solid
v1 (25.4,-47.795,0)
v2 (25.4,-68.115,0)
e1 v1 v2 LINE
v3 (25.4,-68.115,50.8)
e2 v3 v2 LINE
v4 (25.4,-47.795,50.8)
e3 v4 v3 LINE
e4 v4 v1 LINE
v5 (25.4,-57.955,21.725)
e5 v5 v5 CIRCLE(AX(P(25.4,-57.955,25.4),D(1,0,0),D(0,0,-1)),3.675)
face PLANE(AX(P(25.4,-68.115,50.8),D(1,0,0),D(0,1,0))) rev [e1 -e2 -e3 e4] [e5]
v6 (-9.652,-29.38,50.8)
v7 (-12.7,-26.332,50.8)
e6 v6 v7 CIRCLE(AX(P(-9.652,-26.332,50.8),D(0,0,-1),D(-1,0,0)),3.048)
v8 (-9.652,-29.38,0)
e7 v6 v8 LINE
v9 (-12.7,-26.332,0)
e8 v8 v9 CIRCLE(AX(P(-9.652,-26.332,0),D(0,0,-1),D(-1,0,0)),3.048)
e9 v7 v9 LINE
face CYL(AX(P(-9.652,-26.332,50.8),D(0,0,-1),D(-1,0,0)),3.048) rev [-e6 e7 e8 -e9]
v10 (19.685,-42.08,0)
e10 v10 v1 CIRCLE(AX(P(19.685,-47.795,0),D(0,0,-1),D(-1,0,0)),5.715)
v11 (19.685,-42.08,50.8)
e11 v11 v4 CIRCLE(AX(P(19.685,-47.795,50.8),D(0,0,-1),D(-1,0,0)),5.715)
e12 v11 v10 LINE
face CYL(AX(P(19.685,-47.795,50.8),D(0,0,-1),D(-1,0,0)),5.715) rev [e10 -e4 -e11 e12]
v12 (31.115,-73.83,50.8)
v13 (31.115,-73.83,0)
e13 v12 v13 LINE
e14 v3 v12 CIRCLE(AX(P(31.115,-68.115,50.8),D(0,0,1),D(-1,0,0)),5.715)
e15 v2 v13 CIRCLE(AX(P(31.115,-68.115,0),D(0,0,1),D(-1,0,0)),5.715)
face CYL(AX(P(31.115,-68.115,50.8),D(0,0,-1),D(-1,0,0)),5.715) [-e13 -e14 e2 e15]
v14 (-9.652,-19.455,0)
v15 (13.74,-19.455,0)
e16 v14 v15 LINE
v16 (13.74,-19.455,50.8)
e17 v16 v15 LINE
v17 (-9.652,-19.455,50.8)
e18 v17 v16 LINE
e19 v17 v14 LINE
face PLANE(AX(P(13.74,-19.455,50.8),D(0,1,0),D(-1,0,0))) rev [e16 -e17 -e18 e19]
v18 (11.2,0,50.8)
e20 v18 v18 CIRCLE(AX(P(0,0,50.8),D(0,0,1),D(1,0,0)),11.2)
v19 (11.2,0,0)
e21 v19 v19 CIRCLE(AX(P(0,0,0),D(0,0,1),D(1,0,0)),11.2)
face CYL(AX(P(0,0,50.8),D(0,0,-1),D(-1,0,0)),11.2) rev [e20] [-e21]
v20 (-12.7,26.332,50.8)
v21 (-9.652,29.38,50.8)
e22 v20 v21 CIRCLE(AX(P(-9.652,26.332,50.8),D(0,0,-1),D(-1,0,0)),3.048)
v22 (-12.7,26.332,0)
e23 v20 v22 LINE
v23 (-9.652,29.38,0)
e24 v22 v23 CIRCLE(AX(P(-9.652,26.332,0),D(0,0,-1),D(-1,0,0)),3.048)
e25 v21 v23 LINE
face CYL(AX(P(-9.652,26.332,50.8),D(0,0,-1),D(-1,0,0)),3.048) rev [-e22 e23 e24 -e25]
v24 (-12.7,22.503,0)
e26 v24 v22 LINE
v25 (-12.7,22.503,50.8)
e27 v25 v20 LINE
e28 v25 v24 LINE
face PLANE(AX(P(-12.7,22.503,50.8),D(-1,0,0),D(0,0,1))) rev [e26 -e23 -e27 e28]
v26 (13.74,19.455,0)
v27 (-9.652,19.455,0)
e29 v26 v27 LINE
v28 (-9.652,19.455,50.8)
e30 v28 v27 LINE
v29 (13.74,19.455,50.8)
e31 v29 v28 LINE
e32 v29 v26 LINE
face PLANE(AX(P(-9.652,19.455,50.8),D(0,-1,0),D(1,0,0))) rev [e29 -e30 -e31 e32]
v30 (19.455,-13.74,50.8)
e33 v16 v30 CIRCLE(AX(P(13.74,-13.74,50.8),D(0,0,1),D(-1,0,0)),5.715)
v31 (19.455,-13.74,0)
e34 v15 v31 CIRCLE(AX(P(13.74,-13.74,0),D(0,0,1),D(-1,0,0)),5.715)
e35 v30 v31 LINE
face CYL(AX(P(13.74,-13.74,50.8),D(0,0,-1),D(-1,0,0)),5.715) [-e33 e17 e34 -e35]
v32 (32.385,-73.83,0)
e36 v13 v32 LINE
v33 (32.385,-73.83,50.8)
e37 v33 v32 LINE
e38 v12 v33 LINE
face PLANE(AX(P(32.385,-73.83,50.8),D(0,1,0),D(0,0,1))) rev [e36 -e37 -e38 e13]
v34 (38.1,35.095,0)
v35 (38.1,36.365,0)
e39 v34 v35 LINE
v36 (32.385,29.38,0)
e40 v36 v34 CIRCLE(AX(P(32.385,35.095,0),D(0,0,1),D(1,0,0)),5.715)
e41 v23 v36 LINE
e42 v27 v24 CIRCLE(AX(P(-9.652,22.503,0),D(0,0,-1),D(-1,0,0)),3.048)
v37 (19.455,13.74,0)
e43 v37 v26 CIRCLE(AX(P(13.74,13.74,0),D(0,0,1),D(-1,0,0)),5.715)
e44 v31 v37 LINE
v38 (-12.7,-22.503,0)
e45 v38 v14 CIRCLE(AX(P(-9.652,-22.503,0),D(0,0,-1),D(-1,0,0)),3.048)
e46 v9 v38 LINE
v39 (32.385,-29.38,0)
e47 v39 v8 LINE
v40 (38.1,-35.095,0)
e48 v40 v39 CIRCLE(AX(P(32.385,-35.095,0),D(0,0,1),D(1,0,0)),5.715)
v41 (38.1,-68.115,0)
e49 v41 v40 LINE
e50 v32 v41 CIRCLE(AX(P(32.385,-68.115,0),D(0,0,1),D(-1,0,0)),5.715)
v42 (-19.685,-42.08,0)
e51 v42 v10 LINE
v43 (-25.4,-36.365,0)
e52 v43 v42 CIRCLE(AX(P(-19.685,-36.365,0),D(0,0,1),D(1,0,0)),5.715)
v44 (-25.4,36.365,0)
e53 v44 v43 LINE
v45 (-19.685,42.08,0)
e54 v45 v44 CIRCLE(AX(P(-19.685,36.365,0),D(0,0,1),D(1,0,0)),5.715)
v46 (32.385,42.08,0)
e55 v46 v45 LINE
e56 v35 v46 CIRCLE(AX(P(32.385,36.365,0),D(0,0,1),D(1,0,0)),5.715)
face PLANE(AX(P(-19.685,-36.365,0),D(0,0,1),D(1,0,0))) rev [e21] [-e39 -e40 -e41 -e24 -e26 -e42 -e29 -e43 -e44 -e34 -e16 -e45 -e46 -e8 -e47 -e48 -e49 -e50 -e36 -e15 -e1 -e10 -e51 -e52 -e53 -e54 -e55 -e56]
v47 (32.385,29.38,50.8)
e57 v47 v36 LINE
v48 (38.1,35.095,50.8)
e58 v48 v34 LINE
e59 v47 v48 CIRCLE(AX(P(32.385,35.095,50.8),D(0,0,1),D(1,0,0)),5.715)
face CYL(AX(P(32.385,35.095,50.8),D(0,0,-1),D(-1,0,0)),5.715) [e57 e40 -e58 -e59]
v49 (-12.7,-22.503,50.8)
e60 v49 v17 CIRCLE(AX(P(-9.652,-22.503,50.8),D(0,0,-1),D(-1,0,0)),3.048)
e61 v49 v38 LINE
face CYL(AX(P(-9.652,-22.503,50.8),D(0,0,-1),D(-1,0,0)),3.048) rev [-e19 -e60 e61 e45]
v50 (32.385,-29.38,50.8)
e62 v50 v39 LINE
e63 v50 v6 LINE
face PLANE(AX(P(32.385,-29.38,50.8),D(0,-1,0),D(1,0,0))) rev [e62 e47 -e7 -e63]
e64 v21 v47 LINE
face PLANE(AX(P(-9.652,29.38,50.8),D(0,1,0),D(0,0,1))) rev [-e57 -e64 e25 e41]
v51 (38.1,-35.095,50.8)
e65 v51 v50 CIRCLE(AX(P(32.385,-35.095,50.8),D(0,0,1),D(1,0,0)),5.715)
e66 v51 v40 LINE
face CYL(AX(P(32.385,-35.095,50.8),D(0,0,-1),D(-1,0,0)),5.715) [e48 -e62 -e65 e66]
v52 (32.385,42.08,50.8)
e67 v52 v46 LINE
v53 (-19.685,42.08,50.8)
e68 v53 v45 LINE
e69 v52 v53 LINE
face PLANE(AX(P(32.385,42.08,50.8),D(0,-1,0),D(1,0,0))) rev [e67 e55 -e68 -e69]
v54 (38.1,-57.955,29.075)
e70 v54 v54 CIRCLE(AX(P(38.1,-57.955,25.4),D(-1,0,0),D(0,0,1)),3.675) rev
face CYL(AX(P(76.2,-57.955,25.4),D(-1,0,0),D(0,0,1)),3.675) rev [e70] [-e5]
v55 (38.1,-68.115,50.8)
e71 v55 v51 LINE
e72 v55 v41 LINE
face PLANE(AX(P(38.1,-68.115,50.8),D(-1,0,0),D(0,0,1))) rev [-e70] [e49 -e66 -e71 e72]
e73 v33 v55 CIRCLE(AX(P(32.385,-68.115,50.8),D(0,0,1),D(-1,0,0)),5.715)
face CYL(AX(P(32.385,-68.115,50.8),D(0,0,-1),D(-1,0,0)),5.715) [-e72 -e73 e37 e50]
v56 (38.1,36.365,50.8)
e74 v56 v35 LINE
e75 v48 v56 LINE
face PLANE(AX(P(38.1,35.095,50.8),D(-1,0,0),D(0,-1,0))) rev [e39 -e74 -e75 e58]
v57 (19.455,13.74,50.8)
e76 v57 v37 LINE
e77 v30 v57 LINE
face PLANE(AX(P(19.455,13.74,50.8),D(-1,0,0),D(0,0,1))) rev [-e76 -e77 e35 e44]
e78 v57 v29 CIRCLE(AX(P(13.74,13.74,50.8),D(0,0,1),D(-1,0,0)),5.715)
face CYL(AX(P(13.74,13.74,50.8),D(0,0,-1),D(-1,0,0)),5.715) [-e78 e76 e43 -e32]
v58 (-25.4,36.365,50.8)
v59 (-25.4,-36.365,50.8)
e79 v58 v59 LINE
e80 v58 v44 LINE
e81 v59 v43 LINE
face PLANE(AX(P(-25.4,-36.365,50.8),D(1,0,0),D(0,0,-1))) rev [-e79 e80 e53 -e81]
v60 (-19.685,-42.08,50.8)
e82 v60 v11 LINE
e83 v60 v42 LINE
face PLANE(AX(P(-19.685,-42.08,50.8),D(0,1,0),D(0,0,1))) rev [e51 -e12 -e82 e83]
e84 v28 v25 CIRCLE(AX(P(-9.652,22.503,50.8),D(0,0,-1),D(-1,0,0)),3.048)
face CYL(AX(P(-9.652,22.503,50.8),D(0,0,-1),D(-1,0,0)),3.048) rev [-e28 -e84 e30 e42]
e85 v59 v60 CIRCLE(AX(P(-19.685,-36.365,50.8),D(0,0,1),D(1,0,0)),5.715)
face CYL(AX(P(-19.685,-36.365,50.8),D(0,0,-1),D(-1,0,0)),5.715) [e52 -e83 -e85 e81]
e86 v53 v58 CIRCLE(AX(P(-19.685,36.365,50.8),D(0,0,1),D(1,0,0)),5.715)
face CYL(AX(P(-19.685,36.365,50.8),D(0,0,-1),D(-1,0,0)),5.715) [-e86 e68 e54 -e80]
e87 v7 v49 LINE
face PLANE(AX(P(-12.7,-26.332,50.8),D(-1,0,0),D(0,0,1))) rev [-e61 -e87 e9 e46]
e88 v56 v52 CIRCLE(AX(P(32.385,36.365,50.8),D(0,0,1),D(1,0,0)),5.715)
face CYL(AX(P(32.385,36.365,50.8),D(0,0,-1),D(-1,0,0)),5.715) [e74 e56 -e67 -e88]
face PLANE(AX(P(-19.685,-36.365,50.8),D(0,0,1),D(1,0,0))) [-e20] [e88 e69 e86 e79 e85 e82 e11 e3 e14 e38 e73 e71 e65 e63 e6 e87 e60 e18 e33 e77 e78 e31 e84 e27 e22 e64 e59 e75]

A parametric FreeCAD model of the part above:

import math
import FreeCAD as App
import Part
import Sketcher
from FreeCAD import Vector
Q = App.Units.Quantity

doc = App.newDocument("Part")
body = doc.addObject("PartDesign::Body", "Body")

# Sketch on XY plane
sketch1 = doc.addObject("Sketcher::SketchObject", "Sketch")
body.addObject(sketch1)
sketch1.AttachmentSupport = (doc.XY_Plane, [""])
sketch1.MapMode = "FlatFace"
sketch1.addGeometry([
    Part.LineSegment(Vector(-25.4, 36.4, 0), Vector(-25.4, -36.4, 0)),  # 0
    Part.ArcOfCircle(Part.Circle(Vector(-19.7, -36.4, 0), Vector(0, 0, 1), 5.7), math.radians(-180), math.radians(-90)),  # 1
    Part.LineSegment(Vector(-19.7, -42.1, 0), Vector(19.7, -42.1, 0)),  # 2
    Part.ArcOfCircle(Part.Circle(Vector(19.7, -47.8, 0), Vector(0, 0, 1), 5.7), math.radians(0), math.radians(90)),  # 3
    Part.LineSegment(Vector(25.4, -47.8, 0), Vector(25.4, -68.1, 0)),  # 4
    Part.ArcOfCircle(Part.Circle(Vector(31.1, -68.1, 0), Vector(0, 0, 1), 5.7), math.radians(-180), math.radians(-90)),  # 5
    Part.LineSegment(Vector(31.1, -73.8, 0), Vector(32.4, -73.8, 0)),  # 6
    Part.ArcOfCircle(Part.Circle(Vector(32.4, -68.1, 0), Vector(0, 0, 1), 5.7), math.radians(-90), math.radians(0)),  # 7
    Part.LineSegment(Vector(38.1, -68.1, 0), Vector(38.1, -35.1, 0)),  # 8
    Part.ArcOfCircle(Part.Circle(Vector(32.4, -35.1, 0), Vector(0, 0, 1), 5.7), math.radians(0), math.radians(90)),  # 9
    Part.LineSegment(Vector(32.4, -29.4, 0), Vector(-9.7, -29.4, 0)),  # 10
    Part.ArcOfCircle(Part.Circle(Vector(-9.7, -26.3, 0), Vector(0, 0, 1), 3), math.radians(180), math.radians(270)),  # 11
    Part.LineSegment(Vector(-12.7, -26.3, 0), Vector(-12.7, -22.5, 0)),  # 12
    Part.ArcOfCircle(Part.Circle(Vector(-9.7, -22.5, 0), Vector(0, 0, 1), 3), math.radians(90), math.radians(180)),  # 13
    Part.LineSegment(Vector(-9.7, -19.5, 0), Vector(13.7, -19.5, 0)),  # 14
    Part.ArcOfCircle(Part.Circle(Vector(13.7, -13.7, 0), Vector(0, 0, 1), 5.7), math.radians(-90), math.radians(0)),  # 15
    Part.LineSegment(Vector(19.5, -13.7, 0), Vector(19.5, 13.7, 0)),  # 16
    Part.ArcOfCircle(Part.Circle(Vector(13.7, 13.7, 0), Vector(0, 0, 1), 5.7), math.radians(0), math.radians(90)),  # 17
    Part.LineSegment(Vector(13.7, 19.5, 0), Vector(-9.7, 19.5, 0)),  # 18
    Part.ArcOfCircle(Part.Circle(Vector(-9.7, 22.5, 0), Vector(0, 0, 1), 3), math.radians(180), math.radians(270)),  # 19
    Part.LineSegment(Vector(-12.7, 22.5, 0), Vector(-12.7, 26.3, 0)),  # 20
    Part.ArcOfCircle(Part.Circle(Vector(-9.7, 26.3, 0), Vector(0, 0, 1), 3), math.radians(90), math.radians(180)),  # 21
    Part.LineSegment(Vector(-9.7, 29.4, 0), Vector(32.4, 29.4, 0)),  # 22
    Part.ArcOfCircle(Part.Circle(Vector(32.4, 35.1, 0), Vector(0, 0, 1), 5.7), math.radians(-90), math.radians(0)),  # 23
    Part.LineSegment(Vector(38.1, 35.1, 0), Vector(38.1, 36.4, 0)),  # 24
    Part.ArcOfCircle(Part.Circle(Vector(32.4, 36.4, 0), Vector(0, 0, 1), 5.7), math.radians(0), math.radians(90)),  # 25
    Part.LineSegment(Vector(32.4, 42.1, 0), Vector(-19.7, 42.1, 0)),  # 26
    Part.ArcOfCircle(Part.Circle(Vector(-19.7, 36.4, 0), Vector(0, 0, 1), 5.7), math.radians(90), math.radians(180)),  # 27
    Part.Circle(Vector(0, 0, 0), Vector(0, 0, 1), 11.2),  # 28
], False)
sketch1.addConstraint([
    Sketcher.Constraint("Tangent", 0, 2, 1, 1),
    Sketcher.Constraint("Tangent", 1, 2, 2, 1),
    Sketcher.Constraint("Tangent", 2, 2, 3, 2),
    Sketcher.Constraint("Tangent", 3, 1, 4, 1),
    Sketcher.Constraint("Tangent", 4, 2, 5, 1),
    Sketcher.Constraint("Tangent", 5, 2, 6, 1),
    Sketcher.Constraint("Tangent", 6, 2, 7, 1),
    Sketcher.Constraint("Tangent", 7, 2, 8, 1),
    Sketcher.Constraint("Tangent", 8, 2, 9, 1),
    Sketcher.Constraint("Tangent", 9, 2, 10, 1),
    Sketcher.Constraint("Tangent", 10, 2, 11, 2),
    Sketcher.Constraint("Tangent", 11, 1, 12, 1),
    Sketcher.Constraint("Tangent", 12, 2, 13, 2),
    Sketcher.Constraint("Tangent", 13, 1, 14, 1),
    Sketcher.Constraint("Tangent", 14, 2, 15, 1),
    Sketcher.Constraint("Tangent", 15, 2, 16, 1),
    Sketcher.Constraint("Tangent", 16, 2, 17, 1),
    Sketcher.Constraint("Tangent", 17, 2, 18, 1),
    Sketcher.Constraint("Tangent", 18, 2, 19, 2),
    Sketcher.Constraint("Tangent", 19, 1, 20, 1),
    Sketcher.Constraint("Tangent", 20, 2, 21, 2),
    Sketcher.Constraint("Tangent", 21, 1, 22, 1),
    Sketcher.Constraint("Tangent", 22, 2, 23, 1),
    Sketcher.Constraint("Tangent", 23, 2, 24, 1),
    Sketcher.Constraint("Tangent", 24, 2, 25, 1),
    Sketcher.Constraint("Tangent", 25, 2, 26, 1),
    Sketcher.Constraint("Tangent", 26, 2, 27, 1),
    Sketcher.Constraint("Tangent", 27, 2, 0, 1),
    Sketcher.Constraint("Vertical", 0),
    Sketcher.Constraint("Horizontal", 2),
    Sketcher.Constraint("Vertical", 4),
    Sketcher.Constraint("Horizontal", 6),
    Sketcher.Constraint("Vertical", 8),
    Sketcher.Constraint("Horizontal", 10),
    Sketcher.Constraint("Vertical", 12),
    Sketcher.Constraint("Horizontal", 14),
    Sketcher.Constraint("Vertical", 16),
    Sketcher.Constraint("Horizontal", 18),
    Sketcher.Constraint("Vertical", 20),
    Sketcher.Constraint("Horizontal", 22),
    Sketcher.Constraint("Vertical", 24),
    Sketcher.Constraint("Horizontal", 26),
    Sketcher.Constraint("Coincident", 28, 3, -1, 1),
    Sketcher.Constraint("Equal", 1, 3),
    Sketcher.Constraint("Equal", 3, 5),
    Sketcher.Constraint("Equal", 5, 7),
    Sketcher.Constraint("Equal", 7, 9),
    Sketcher.Constraint("Equal", 11, 13),
    Sketcher.Constraint("Equal", 9, 15),
    Sketcher.Constraint("Equal", 15, 17),
    Sketcher.Constraint("Equal", 13, 19),
    Sketcher.Constraint("Equal", 19, 21),
    Sketcher.Constraint("Equal", 17, 23),
    Sketcher.Constraint("Equal", 23, 25),
    Sketcher.Constraint("Equal", 25, 27),
    Sketcher.Constraint("Symmetric", 2, 2, 26, 2, -1, 1),
    Sketcher.Constraint("Symmetric", 13, 3, 19, 3, -1),
    Sketcher.Constraint("Symmetric", 9, 3, 23, 3, -1),
    Sketcher.Constraint("Equal", 6, 24),
    Sketcher.Constraint("Radius", 11, Q("0.12 in")),
    Sketcher.Constraint("DistanceY", 4, 2, 4, 1, Q("0.8 in")),
    Sketcher.Constraint("DistanceY", 8, 1, 8, 2, Q("1.3 in")),
    Sketcher.Constraint("DistanceX", 0, 2, -1, 1, Q("1 in")),
    Sketcher.Constraint("Radius", 1, Q("0.225 in")),
    Sketcher.Constraint("DistanceX", 11, 1, -1, 1, Q("0.5 in")),
    Sketcher.Constraint("Diameter", 28, Q("22.4 mm")),
    Sketcher.Constraint("DistanceX", 14, 1, 14, 2, Q("23.392 mm")),
    Sketcher.Constraint("DistanceY", 0, 2, 0, 1, Q("72.73 mm")),
    Sketcher.Constraint("DistanceY", 12, 1, 12, 2, Q("3.829 mm")),
])
pad1 = doc.addObject("PartDesign::Pad", "Pad")
body.addObject(pad1)
pad1.Profile = sketch1
pad1.Length = Q("2 in")

# Sketch on YZ plane
sketch2 = doc.addObject("Sketcher::SketchObject", "Sketch001")
body.addObject(sketch2)
sketch2.AttachmentSupport = (doc.YZ_Plane, [""])
sketch2.MapMode = "FlatFace"
sketch2.AttachmentOffset = App.Placement(Vector(0, 0, 1 * 25.4), App.Rotation())
sketch2.addGeometry(Part.Circle(Vector(-58, 25.4, 0), Vector(0, 0, 1), 3.7), False)
sketch2.addConstraint([
    Sketcher.Constraint("DistanceY", -1, 1, 0, 3, Q("1 in")),
    Sketcher.Constraint("Diameter", 0, Q("7.35 mm")),
    Sketcher.Constraint("DistanceX", 0, 3, -1, 1, Q("57.955 mm")),
])
pocket1 = doc.addObject("PartDesign::Pocket", "Pocket")
body.addObject(pocket1)
pocket1.Profile = sketch2
pocket1.Length = Q("2 in")
pocket1.Reversed = True

doc.recompute()
